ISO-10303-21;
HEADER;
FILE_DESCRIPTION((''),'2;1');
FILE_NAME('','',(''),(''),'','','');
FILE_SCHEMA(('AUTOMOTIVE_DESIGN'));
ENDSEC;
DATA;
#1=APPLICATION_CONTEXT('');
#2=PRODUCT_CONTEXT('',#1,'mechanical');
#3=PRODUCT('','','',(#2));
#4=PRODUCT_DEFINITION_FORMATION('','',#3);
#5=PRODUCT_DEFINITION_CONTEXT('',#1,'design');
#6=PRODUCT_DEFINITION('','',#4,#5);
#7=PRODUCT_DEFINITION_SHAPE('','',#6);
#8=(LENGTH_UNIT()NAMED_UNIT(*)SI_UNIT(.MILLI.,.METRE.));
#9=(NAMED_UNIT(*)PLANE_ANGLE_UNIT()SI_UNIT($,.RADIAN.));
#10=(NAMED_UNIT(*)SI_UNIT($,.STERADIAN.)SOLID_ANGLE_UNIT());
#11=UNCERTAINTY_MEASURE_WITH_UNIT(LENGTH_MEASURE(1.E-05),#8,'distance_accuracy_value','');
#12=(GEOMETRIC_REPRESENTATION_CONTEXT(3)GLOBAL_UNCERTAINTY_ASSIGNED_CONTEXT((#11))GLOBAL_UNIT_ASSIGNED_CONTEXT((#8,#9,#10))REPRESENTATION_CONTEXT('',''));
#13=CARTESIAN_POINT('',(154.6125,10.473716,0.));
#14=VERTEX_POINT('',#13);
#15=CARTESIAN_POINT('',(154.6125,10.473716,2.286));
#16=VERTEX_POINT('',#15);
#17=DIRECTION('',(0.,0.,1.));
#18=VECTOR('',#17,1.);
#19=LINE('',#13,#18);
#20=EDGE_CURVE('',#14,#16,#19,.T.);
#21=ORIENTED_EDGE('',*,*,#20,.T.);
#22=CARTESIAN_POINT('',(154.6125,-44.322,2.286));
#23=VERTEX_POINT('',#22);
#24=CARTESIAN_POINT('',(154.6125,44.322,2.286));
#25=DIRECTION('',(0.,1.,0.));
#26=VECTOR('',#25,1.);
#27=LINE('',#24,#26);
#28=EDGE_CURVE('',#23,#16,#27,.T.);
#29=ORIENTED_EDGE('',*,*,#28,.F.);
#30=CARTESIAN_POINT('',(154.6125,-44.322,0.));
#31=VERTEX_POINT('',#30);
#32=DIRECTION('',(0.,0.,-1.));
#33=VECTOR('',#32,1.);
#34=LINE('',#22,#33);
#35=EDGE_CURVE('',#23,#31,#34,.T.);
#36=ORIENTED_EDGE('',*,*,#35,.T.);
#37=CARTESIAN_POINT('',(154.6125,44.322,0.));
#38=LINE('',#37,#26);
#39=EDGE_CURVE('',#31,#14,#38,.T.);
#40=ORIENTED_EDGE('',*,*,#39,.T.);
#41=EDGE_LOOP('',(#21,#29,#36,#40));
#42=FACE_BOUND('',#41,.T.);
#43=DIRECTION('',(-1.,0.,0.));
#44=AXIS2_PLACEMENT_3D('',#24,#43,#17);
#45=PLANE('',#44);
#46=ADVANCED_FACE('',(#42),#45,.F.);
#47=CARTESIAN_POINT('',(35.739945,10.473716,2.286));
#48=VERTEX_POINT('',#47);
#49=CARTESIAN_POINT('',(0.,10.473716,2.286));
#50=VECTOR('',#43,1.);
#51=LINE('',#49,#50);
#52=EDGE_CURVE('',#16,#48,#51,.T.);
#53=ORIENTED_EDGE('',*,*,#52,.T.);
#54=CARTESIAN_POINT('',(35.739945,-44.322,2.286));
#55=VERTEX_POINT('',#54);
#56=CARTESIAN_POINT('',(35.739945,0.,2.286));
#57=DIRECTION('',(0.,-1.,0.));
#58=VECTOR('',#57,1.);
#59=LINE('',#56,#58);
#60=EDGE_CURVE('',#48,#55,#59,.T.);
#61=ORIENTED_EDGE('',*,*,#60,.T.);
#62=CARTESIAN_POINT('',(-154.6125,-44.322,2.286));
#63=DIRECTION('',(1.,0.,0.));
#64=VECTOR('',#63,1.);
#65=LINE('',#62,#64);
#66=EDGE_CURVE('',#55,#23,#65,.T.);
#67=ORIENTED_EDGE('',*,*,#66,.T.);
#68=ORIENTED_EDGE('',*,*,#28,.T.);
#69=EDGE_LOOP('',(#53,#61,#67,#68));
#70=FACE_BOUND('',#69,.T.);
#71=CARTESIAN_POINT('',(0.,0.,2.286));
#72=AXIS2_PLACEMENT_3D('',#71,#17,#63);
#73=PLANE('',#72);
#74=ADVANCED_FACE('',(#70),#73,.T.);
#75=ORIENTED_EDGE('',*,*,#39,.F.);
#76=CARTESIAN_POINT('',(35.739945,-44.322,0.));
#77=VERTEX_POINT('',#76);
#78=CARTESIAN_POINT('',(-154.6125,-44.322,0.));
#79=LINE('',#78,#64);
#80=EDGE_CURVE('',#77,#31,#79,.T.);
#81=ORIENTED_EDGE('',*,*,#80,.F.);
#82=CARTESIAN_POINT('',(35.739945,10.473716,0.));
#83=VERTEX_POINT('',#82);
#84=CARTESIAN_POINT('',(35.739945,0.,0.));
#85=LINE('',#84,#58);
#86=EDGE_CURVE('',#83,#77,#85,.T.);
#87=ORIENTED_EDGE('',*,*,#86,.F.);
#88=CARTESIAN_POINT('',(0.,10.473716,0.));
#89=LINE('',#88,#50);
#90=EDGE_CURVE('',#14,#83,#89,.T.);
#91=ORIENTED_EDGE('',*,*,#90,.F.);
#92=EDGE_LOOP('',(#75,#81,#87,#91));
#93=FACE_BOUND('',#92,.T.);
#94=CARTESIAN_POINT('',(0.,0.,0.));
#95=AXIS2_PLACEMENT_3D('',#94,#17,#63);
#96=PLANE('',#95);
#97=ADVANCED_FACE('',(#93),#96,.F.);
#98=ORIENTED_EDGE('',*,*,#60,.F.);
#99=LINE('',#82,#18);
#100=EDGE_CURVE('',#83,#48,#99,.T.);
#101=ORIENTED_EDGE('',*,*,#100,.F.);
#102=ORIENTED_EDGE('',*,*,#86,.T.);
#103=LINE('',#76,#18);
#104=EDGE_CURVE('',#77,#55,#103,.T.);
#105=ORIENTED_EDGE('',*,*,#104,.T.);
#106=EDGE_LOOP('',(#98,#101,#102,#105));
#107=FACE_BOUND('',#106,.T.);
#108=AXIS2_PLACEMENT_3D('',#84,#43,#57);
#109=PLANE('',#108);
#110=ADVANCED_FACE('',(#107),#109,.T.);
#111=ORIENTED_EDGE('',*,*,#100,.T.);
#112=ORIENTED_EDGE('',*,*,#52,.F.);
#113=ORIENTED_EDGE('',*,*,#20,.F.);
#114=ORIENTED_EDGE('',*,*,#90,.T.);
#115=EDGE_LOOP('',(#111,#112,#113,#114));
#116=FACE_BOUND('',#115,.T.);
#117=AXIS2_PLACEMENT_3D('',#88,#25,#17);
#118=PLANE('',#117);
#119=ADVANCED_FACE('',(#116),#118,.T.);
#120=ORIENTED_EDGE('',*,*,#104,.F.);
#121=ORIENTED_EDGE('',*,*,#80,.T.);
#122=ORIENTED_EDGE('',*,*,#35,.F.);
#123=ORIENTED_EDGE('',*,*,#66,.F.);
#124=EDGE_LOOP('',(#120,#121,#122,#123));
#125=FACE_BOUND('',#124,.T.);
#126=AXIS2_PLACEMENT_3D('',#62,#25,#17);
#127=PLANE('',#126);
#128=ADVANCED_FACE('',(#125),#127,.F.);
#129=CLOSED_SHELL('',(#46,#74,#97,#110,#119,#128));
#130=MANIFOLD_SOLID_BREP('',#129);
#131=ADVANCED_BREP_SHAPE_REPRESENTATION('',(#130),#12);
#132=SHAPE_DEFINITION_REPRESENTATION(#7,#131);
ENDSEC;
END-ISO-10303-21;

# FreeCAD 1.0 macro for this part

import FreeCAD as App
import Part
import Sketcher
from FreeCAD import Vector
Q = App.Units.Quantity


def add_polygon(sketch, points):
    """Adds a closed chain of lines whose ends are joined by coincident constraints."""
    first, n = sketch.GeometryCount, len(points)
    for a, b in zip(points, points[1:] + points[:1]):
        sketch.addGeometry(Part.LineSegment(App.Vector(*a, 0), App.Vector(*b, 0)), False)
    for i in range(n):
        sketch.addConstraint(Sketcher.Constraint("Coincident", first + i, 2, first + (i + 1) % n, 1))

doc = App.newDocument("Part")
body = doc.addObject("PartDesign::Body", "Body")

# Sketch on XY plane
sketch1 = doc.addObject("Sketcher::SketchObject", "Sketch")
body.addObject(sketch1)
sketch1.AttachmentSupport = (doc.XY_Plane, [""])
sketch1.MapMode = "FlatFace"
add_polygon(sketch1, [(-154.6125, 44.322), (-154.6125, -44.322), (154.6125, -44.322), (154.6125, 44.322)])  # lines 0-3
sketch1.addConstraint([
    Sketcher.Constraint("Vertical", 0),
    Sketcher.Constraint("Horizontal", 1),
    Sketcher.Constraint("Vertical", 2),
    Sketcher.Constraint("Horizontal", 3),
    Sketcher.Constraint("Symmetric", 0, 2, 2, 2, -1, 1),
    Sketcher.Constraint("DistanceX", 1, 1, 1, 2, Q("309.225 mm")),
    Sketcher.Constraint("DistanceY", 0, 2, 0, 1, Q("88.644 mm")),
])
pad1 = doc.addObject("PartDesign::Pad", "Pad")
body.addObject(pad1)
pad1.Profile = sketch1
pad1.Length = Q("0.09 in")

# Sketch on XY plane
sketch2 = doc.addObject("Sketcher::SketchObject", "Sketch001")
body.addObject(sketch2)
sketch2.AttachmentSupport = (doc.XY_Plane, [""])
sketch2.MapMode = "FlatFace"
sketch2.AttachmentOffset = App.Placement(Vector(0, 0, 0.09 * 25.4), App.Rotation())
add_polygon(sketch2, [(154.6125, 10.473716), (154.6125, 44.322), (-154.6125, 44.322), (-154.6125, -44.322), (35.739945, -44.322), (35.739945, 10.473716)])  # lines 0-5
sketch2.addConstraint([
    Sketcher.Constraint("Vertical", 0),
    Sketcher.Constraint("Horizontal", 1),
    Sketcher.Constraint("Vertical", 2),
    Sketcher.Constraint("Horizontal", 3),
    Sketcher.Constraint("Vertical", 4),
    Sketcher.Constraint("Horizontal", 5),
    Sketcher.Constraint("Symmetric", 0, 2, 2, 2, -1, 1),
    Sketcher.Constraint("DistanceX", 1, 2, 1, 1, Q("309.225 mm")),
    Sketcher.Constraint("DistanceY", 2, 2, 2, 1, Q("88.644 mm")),
    Sketcher.Constraint("DistanceX", 3, 1, 3, 2, Q("190.352445 mm")),
    Sketcher.Constraint("DistanceY", 0, 1, 0, 2, Q("33.848284 mm")),
])
pocket1 = doc.addObject("PartDesign::Pocket", "Pocket")
body.addObject(pocket1)
pocket1.Profile = sketch2
pocket1.Type = "ThroughAll"

doc.recompute()
